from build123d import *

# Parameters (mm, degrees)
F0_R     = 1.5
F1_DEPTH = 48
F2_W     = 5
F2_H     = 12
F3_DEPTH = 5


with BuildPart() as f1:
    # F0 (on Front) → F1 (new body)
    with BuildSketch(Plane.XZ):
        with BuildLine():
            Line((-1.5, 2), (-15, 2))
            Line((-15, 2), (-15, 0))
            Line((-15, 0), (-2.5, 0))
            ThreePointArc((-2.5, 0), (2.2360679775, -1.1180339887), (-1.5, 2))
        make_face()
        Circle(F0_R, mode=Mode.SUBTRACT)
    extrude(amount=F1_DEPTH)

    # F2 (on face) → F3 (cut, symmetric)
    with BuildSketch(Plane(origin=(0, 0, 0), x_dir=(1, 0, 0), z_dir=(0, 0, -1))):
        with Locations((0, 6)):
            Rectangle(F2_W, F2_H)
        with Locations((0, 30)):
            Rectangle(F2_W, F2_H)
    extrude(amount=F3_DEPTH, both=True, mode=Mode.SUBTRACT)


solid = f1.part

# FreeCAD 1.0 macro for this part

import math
import FreeCAD as App
import Part
import Sketcher
from FreeCAD import Vector

doc = App.newDocument("Part")
params = doc.addObject("Spreadsheet::Sheet", "Params")
for row, (alias, value) in enumerate([
    ("sketch1_diameter", "3 mm"),
    ("sketch1_radius", "2.5 mm"),
    ("sketch1_height", "2 mm"),
    ("sketch1_width", "13.5 mm"),
    ("pad1_length", "48 mm"),
    ("sketch2_width", "5 mm"),
    ("sketch2_height", "12 mm"),
    ("pocket1_length", "10 mm"),
], start=1):
    params.set(f"A{row}", alias)
    params.set(f"B{row}", "=" + value)
    params.setAlias(f"B{row}", alias)

body = doc.addObject("PartDesign::Body", "Body")

# Sketch on XZ plane
sketch1 = doc.addObject("Sketcher::SketchObject", "Sketch")
body.addObject(sketch1)
sketch1.AttachmentSupport = (doc.XZ_Plane, [""])
sketch1.MapMode = "FlatFace"
sketch1.addGeometry([
    Part.LineSegment(Vector(-1.5, 2, 0), Vector(-15, 2, 0)),  # 0
    Part.LineSegment(Vector(-15, 2, 0), Vector(-15, 0, 0)),  # 1
    Part.LineSegment(Vector(-15, 0, 0), Vector(-2.5, 0, 0)),  # 2
    Part.ArcOfCircle(Part.Circle(Vector(0, 0, 0), Vector(0, 0, 1), 2.5), math.radians(180), math.radians(487)),  # 3
    Part.Circle(Vector(0, 0, 0), Vector(0, 0, 1), 1.5),  # 4
], False)
sketch1.addConstraint([
    Sketcher.Constraint("Coincident", 0, 2, 1, 1),
    Sketcher.Constraint("Coincident", 1, 2, 2, 1),
    Sketcher.Constraint("Coincident", 2, 2, 3, 1),
    Sketcher.Constraint("Coincident", 3, 2, 0, 1),
    Sketcher.Constraint("Horizontal", 0),
    Sketcher.Constraint("Vertical", 1),
    Sketcher.Constraint("Horizontal", 2),
    Sketcher.Constraint("Coincident", 3, 3, -1, 1),
    Sketcher.Constraint("Coincident", 4, 3, -1, 1),
    Sketcher.Constraint("PointOnObject", 1, 2, -1),
    Sketcher.Constraint("Diameter", 4, 3.0),
    Sketcher.Constraint("Radius", 3, 2.5),
    Sketcher.Constraint("DistanceY", 1, 2, 1, 1, 2.0),
    Sketcher.Constraint("DistanceX", 0, 2, 0, 1, 13.5),
])
sketch1.setExpression("Constraints[10]", "Params.sketch1_diameter")
sketch1.setExpression("Constraints[11]", "Params.sketch1_radius")
sketch1.setExpression("Constraints[12]", "Params.sketch1_height")
sketch1.setExpression("Constraints[13]", "Params.sketch1_width")
pad1 = doc.addObject("PartDesign::Pad", "Pad")
body.addObject(pad1)
pad1.Profile = sketch1
pad1.setExpression("Length", "Params.pad1_length")

# Sketch on XY plane
sketch2 = doc.addObject("Sketcher::SketchObject", "Sketch001")
body.addObject(sketch2)
sketch2.AttachmentSupport = (doc.XY_Plane, [""])
sketch2.MapMode = "FlatFace"
sketch2.addGeometry([
    Part.LineSegment(Vector(-2, -12, 0), Vector(-2, 0, 0)),  # 0
    Part.LineSegment(Vector(-2, 0, 0), Vector(2, 0, 0)),  # 1
    Part.LineSegment(Vector(2, 0, 0), Vector(2, -12, 0)),  # 2
    Part.LineSegment(Vector(2, -12, 0), Vector(-2, -12, 0)),  # 3
    Part.LineSegment(Vector(-2, -36, 0), Vector(-2, -24, 0)),  # 4
    Part.LineSegment(Vector(-2, -24, 0), Vector(2, -24, 0)),  # 5
    Part.LineSegment(Vector(2, -24, 0), Vector(2, -36, 0)),  # 6
    Part.LineSegment(Vector(2, -36, 0), Vector(-2, -36, 0)),  # 7
], False)
sketch2.addConstraint([
    Sketcher.Constraint("Coincident", 0, 2, 1, 1),
    Sketcher.Constraint("Coincident", 1, 2, 2, 1),
    Sketcher.Constraint("Coincident", 2, 2, 3, 1),
    Sketcher.Constraint("Coincident", 3, 2, 0, 1),
    Sketcher.Constraint("Coincident", 4, 2, 5, 1),
    Sketcher.Constraint("Coincident", 5, 2, 6, 1),
    Sketcher.Constraint("Coincident", 6, 2, 7, 1),
    Sketcher.Constraint("Coincident", 7, 2, 4, 1),
    Sketcher.Constraint("Vertical", 0),
    Sketcher.Constraint("Horizontal", 1),
    Sketcher.Constraint("Vertical", 2),
    Sketcher.Constraint("Horizontal", 3),
    Sketcher.Constraint("Vertical", 4),
    Sketcher.Constraint("Horizontal", 5),
    Sketcher.Constraint("Vertical", 6),
    Sketcher.Constraint("Horizontal", 7),
    Sketcher.Constraint("Symmetric", 0, 2, 1, 2, -1, 1),
    Sketcher.Constraint("Vertical", 3, 2, 4, 2),
    Sketcher.Constraint("Vertical", 2, 2, 5, 2),
    Sketcher.Constraint("Equal", 2, 4),
    Sketcher.Constraint("DistanceX", 1, 1, 1, 2, 5.0),
    Sketcher.Constraint("DistanceY", 0, 1, 0, 2, 12.0),
    Sketcher.Constraint("DistanceY", 4, 2, -1, 1, 24.0),
])
sketch2.setExpression("Constraints[20]", "Params.sketch2_width")
sketch2.setExpression("Constraints[21]", "Params.sketch2_height")
pocket1 = doc.addObject("PartDesign::Pocket", "Pocket")
body.addObject(pocket1)
pocket1.Profile = sketch2
pocket1.setExpression("Length", "Params.pocket1_length")
pocket1.Midplane = True

doc.recompute()
